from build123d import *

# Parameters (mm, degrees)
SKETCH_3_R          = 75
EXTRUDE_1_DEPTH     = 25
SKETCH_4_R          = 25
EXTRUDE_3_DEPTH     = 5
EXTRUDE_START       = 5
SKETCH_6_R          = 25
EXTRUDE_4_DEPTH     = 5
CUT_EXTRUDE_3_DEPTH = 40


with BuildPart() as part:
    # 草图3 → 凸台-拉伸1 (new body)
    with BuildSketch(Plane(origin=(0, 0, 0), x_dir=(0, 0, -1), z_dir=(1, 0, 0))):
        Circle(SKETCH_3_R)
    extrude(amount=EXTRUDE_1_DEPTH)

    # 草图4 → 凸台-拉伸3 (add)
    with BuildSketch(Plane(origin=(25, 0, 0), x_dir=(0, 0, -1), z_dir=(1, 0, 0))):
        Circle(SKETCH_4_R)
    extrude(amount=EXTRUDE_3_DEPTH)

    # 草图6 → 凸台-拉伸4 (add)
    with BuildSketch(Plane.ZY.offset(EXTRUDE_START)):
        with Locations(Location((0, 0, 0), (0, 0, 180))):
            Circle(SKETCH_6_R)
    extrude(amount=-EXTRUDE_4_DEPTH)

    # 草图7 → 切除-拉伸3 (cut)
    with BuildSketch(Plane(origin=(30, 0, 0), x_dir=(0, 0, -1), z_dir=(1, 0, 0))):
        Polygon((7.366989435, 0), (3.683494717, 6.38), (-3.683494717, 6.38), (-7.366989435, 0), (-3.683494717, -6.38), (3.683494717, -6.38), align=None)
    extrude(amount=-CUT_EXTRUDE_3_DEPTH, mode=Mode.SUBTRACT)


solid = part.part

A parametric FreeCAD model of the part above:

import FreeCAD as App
import Part
import Sketcher

V = App.Vector
Q = App.Units.Quantity


def add_polygon(sketch, points):
    """Adds a closed chain of lines whose ends are joined by coincident constraints."""
    first, n = sketch.GeometryCount, len(points)
    for a, b in zip(points, points[1:] + points[:1]):
        sketch.addGeometry(Part.LineSegment(App.Vector(*a, 0), App.Vector(*b, 0)), False)
    for i in range(n):
        sketch.addConstraint(Sketcher.Constraint("Coincident", first + i, 2, first + (i + 1) % n, 1))

doc = App.newDocument("Part")
body = doc.addObject("PartDesign::Body", "Body")

sketch1 = body.newObject("Sketcher::SketchObject", "Sketch")
sketch1.AttachmentSupport = (doc.getObject("YZ_Plane"), [""])
sketch1.MapMode = "FlatFace"
sketch1.addGeometry(Part.Circle(V(0, 0, 0), V(0, 0, 1), 75), False)
sketch1.addConstraint([
    Sketcher.Constraint("Coincident", 0, 3, -1, 1),
    Sketcher.Constraint("Diameter", 0, Q("150 mm")),
])
pad1 = body.newObject("PartDesign::Pad", "Pad")
pad1.Profile = sketch1
pad1.Length = 25

sketch2 = body.newObject("Sketcher::SketchObject", "Sketch001")
sketch2.AttachmentSupport = (doc.getObject("YZ_Plane"), [""])
sketch2.MapMode = "FlatFace"
sketch2.AttachmentOffset = App.Placement(V(0, 0, 25), App.Rotation())
sketch2.addGeometry(Part.Circle(V(0, 0, 0), V(0, 0, 1), 25), False)
sketch2.addConstraint([
    Sketcher.Constraint("Coincident", 0, 3, -1, 1),
    Sketcher.Constraint("Diameter", 0, Q("50 mm")),
])
pad2 = body.newObject("PartDesign::Pad", "Pad001")
pad2.Profile = sketch2
pad2.Length = 5

sketch3 = body.newObject("Sketcher::SketchObject", "Sketch002")
sketch3.AttachmentSupport = (doc.getObject("YZ_Plane"), [""])
sketch3.MapMode = "FlatFace"
sketch3.AttachmentOffset = App.Placement(V(0, 0, -5), App.Rotation())
sketch3.addGeometry(Part.Circle(V(0, 0, 0), V(0, 0, 1), 25), False)
sketch3.addConstraint([
    Sketcher.Constraint("Coincident", 0, 3, -1, 1),
    Sketcher.Constraint("Diameter", 0, Q("50 mm")),
])
pad3 = body.newObject("PartDesign::Pad", "Pad002")
pad3.Profile = sketch3
pad3.Length = 5

sketch4 = body.newObject("Sketcher::SketchObject", "Sketch003")
sketch4.AttachmentSupport = (doc.getObject("YZ_Plane"), [""])
sketch4.MapMode = "FlatFace"
sketch4.AttachmentOffset = App.Placement(V(0, 0, 30), App.Rotation())
add_polygon(sketch4, [(0, -7.366989), (6.38, -3.683495), (6.38, 3.683495), (0, 7.366989), (-6.38, 3.683495), (-6.38, -3.683495)])
sketch4.addConstraint([
    Sketcher.Constraint("Vertical", 1),
    Sketcher.Constraint("Vertical", 4),
    Sketcher.Constraint("Symmetric", 0, 2, 3, 2, -1, 1),
    Sketcher.Constraint("Symmetric", 2, 2, 5, 2, -1, 1),
    Sketcher.Constraint("PointOnObject", 2, 2, -2),
    Sketcher.Constraint("Parallel", 2, 5),
    Sketcher.Constraint("Horizontal", 1, 2, 3, 2),
    Sketcher.Constraint("Angle", 0, Q("30 deg")),
    Sketcher.Constraint("DistanceX", -1, 1, 0, 2, Q("6.38 mm")),
    Sketcher.Constraint("DistanceY", 1, 1, 1, 2, Q("7.366989 mm")),
])
pocket1 = body.newObject("PartDesign::Pocket", "Pocket")
pocket1.Profile = sketch4
pocket1.Length = 40

doc.recompute()
